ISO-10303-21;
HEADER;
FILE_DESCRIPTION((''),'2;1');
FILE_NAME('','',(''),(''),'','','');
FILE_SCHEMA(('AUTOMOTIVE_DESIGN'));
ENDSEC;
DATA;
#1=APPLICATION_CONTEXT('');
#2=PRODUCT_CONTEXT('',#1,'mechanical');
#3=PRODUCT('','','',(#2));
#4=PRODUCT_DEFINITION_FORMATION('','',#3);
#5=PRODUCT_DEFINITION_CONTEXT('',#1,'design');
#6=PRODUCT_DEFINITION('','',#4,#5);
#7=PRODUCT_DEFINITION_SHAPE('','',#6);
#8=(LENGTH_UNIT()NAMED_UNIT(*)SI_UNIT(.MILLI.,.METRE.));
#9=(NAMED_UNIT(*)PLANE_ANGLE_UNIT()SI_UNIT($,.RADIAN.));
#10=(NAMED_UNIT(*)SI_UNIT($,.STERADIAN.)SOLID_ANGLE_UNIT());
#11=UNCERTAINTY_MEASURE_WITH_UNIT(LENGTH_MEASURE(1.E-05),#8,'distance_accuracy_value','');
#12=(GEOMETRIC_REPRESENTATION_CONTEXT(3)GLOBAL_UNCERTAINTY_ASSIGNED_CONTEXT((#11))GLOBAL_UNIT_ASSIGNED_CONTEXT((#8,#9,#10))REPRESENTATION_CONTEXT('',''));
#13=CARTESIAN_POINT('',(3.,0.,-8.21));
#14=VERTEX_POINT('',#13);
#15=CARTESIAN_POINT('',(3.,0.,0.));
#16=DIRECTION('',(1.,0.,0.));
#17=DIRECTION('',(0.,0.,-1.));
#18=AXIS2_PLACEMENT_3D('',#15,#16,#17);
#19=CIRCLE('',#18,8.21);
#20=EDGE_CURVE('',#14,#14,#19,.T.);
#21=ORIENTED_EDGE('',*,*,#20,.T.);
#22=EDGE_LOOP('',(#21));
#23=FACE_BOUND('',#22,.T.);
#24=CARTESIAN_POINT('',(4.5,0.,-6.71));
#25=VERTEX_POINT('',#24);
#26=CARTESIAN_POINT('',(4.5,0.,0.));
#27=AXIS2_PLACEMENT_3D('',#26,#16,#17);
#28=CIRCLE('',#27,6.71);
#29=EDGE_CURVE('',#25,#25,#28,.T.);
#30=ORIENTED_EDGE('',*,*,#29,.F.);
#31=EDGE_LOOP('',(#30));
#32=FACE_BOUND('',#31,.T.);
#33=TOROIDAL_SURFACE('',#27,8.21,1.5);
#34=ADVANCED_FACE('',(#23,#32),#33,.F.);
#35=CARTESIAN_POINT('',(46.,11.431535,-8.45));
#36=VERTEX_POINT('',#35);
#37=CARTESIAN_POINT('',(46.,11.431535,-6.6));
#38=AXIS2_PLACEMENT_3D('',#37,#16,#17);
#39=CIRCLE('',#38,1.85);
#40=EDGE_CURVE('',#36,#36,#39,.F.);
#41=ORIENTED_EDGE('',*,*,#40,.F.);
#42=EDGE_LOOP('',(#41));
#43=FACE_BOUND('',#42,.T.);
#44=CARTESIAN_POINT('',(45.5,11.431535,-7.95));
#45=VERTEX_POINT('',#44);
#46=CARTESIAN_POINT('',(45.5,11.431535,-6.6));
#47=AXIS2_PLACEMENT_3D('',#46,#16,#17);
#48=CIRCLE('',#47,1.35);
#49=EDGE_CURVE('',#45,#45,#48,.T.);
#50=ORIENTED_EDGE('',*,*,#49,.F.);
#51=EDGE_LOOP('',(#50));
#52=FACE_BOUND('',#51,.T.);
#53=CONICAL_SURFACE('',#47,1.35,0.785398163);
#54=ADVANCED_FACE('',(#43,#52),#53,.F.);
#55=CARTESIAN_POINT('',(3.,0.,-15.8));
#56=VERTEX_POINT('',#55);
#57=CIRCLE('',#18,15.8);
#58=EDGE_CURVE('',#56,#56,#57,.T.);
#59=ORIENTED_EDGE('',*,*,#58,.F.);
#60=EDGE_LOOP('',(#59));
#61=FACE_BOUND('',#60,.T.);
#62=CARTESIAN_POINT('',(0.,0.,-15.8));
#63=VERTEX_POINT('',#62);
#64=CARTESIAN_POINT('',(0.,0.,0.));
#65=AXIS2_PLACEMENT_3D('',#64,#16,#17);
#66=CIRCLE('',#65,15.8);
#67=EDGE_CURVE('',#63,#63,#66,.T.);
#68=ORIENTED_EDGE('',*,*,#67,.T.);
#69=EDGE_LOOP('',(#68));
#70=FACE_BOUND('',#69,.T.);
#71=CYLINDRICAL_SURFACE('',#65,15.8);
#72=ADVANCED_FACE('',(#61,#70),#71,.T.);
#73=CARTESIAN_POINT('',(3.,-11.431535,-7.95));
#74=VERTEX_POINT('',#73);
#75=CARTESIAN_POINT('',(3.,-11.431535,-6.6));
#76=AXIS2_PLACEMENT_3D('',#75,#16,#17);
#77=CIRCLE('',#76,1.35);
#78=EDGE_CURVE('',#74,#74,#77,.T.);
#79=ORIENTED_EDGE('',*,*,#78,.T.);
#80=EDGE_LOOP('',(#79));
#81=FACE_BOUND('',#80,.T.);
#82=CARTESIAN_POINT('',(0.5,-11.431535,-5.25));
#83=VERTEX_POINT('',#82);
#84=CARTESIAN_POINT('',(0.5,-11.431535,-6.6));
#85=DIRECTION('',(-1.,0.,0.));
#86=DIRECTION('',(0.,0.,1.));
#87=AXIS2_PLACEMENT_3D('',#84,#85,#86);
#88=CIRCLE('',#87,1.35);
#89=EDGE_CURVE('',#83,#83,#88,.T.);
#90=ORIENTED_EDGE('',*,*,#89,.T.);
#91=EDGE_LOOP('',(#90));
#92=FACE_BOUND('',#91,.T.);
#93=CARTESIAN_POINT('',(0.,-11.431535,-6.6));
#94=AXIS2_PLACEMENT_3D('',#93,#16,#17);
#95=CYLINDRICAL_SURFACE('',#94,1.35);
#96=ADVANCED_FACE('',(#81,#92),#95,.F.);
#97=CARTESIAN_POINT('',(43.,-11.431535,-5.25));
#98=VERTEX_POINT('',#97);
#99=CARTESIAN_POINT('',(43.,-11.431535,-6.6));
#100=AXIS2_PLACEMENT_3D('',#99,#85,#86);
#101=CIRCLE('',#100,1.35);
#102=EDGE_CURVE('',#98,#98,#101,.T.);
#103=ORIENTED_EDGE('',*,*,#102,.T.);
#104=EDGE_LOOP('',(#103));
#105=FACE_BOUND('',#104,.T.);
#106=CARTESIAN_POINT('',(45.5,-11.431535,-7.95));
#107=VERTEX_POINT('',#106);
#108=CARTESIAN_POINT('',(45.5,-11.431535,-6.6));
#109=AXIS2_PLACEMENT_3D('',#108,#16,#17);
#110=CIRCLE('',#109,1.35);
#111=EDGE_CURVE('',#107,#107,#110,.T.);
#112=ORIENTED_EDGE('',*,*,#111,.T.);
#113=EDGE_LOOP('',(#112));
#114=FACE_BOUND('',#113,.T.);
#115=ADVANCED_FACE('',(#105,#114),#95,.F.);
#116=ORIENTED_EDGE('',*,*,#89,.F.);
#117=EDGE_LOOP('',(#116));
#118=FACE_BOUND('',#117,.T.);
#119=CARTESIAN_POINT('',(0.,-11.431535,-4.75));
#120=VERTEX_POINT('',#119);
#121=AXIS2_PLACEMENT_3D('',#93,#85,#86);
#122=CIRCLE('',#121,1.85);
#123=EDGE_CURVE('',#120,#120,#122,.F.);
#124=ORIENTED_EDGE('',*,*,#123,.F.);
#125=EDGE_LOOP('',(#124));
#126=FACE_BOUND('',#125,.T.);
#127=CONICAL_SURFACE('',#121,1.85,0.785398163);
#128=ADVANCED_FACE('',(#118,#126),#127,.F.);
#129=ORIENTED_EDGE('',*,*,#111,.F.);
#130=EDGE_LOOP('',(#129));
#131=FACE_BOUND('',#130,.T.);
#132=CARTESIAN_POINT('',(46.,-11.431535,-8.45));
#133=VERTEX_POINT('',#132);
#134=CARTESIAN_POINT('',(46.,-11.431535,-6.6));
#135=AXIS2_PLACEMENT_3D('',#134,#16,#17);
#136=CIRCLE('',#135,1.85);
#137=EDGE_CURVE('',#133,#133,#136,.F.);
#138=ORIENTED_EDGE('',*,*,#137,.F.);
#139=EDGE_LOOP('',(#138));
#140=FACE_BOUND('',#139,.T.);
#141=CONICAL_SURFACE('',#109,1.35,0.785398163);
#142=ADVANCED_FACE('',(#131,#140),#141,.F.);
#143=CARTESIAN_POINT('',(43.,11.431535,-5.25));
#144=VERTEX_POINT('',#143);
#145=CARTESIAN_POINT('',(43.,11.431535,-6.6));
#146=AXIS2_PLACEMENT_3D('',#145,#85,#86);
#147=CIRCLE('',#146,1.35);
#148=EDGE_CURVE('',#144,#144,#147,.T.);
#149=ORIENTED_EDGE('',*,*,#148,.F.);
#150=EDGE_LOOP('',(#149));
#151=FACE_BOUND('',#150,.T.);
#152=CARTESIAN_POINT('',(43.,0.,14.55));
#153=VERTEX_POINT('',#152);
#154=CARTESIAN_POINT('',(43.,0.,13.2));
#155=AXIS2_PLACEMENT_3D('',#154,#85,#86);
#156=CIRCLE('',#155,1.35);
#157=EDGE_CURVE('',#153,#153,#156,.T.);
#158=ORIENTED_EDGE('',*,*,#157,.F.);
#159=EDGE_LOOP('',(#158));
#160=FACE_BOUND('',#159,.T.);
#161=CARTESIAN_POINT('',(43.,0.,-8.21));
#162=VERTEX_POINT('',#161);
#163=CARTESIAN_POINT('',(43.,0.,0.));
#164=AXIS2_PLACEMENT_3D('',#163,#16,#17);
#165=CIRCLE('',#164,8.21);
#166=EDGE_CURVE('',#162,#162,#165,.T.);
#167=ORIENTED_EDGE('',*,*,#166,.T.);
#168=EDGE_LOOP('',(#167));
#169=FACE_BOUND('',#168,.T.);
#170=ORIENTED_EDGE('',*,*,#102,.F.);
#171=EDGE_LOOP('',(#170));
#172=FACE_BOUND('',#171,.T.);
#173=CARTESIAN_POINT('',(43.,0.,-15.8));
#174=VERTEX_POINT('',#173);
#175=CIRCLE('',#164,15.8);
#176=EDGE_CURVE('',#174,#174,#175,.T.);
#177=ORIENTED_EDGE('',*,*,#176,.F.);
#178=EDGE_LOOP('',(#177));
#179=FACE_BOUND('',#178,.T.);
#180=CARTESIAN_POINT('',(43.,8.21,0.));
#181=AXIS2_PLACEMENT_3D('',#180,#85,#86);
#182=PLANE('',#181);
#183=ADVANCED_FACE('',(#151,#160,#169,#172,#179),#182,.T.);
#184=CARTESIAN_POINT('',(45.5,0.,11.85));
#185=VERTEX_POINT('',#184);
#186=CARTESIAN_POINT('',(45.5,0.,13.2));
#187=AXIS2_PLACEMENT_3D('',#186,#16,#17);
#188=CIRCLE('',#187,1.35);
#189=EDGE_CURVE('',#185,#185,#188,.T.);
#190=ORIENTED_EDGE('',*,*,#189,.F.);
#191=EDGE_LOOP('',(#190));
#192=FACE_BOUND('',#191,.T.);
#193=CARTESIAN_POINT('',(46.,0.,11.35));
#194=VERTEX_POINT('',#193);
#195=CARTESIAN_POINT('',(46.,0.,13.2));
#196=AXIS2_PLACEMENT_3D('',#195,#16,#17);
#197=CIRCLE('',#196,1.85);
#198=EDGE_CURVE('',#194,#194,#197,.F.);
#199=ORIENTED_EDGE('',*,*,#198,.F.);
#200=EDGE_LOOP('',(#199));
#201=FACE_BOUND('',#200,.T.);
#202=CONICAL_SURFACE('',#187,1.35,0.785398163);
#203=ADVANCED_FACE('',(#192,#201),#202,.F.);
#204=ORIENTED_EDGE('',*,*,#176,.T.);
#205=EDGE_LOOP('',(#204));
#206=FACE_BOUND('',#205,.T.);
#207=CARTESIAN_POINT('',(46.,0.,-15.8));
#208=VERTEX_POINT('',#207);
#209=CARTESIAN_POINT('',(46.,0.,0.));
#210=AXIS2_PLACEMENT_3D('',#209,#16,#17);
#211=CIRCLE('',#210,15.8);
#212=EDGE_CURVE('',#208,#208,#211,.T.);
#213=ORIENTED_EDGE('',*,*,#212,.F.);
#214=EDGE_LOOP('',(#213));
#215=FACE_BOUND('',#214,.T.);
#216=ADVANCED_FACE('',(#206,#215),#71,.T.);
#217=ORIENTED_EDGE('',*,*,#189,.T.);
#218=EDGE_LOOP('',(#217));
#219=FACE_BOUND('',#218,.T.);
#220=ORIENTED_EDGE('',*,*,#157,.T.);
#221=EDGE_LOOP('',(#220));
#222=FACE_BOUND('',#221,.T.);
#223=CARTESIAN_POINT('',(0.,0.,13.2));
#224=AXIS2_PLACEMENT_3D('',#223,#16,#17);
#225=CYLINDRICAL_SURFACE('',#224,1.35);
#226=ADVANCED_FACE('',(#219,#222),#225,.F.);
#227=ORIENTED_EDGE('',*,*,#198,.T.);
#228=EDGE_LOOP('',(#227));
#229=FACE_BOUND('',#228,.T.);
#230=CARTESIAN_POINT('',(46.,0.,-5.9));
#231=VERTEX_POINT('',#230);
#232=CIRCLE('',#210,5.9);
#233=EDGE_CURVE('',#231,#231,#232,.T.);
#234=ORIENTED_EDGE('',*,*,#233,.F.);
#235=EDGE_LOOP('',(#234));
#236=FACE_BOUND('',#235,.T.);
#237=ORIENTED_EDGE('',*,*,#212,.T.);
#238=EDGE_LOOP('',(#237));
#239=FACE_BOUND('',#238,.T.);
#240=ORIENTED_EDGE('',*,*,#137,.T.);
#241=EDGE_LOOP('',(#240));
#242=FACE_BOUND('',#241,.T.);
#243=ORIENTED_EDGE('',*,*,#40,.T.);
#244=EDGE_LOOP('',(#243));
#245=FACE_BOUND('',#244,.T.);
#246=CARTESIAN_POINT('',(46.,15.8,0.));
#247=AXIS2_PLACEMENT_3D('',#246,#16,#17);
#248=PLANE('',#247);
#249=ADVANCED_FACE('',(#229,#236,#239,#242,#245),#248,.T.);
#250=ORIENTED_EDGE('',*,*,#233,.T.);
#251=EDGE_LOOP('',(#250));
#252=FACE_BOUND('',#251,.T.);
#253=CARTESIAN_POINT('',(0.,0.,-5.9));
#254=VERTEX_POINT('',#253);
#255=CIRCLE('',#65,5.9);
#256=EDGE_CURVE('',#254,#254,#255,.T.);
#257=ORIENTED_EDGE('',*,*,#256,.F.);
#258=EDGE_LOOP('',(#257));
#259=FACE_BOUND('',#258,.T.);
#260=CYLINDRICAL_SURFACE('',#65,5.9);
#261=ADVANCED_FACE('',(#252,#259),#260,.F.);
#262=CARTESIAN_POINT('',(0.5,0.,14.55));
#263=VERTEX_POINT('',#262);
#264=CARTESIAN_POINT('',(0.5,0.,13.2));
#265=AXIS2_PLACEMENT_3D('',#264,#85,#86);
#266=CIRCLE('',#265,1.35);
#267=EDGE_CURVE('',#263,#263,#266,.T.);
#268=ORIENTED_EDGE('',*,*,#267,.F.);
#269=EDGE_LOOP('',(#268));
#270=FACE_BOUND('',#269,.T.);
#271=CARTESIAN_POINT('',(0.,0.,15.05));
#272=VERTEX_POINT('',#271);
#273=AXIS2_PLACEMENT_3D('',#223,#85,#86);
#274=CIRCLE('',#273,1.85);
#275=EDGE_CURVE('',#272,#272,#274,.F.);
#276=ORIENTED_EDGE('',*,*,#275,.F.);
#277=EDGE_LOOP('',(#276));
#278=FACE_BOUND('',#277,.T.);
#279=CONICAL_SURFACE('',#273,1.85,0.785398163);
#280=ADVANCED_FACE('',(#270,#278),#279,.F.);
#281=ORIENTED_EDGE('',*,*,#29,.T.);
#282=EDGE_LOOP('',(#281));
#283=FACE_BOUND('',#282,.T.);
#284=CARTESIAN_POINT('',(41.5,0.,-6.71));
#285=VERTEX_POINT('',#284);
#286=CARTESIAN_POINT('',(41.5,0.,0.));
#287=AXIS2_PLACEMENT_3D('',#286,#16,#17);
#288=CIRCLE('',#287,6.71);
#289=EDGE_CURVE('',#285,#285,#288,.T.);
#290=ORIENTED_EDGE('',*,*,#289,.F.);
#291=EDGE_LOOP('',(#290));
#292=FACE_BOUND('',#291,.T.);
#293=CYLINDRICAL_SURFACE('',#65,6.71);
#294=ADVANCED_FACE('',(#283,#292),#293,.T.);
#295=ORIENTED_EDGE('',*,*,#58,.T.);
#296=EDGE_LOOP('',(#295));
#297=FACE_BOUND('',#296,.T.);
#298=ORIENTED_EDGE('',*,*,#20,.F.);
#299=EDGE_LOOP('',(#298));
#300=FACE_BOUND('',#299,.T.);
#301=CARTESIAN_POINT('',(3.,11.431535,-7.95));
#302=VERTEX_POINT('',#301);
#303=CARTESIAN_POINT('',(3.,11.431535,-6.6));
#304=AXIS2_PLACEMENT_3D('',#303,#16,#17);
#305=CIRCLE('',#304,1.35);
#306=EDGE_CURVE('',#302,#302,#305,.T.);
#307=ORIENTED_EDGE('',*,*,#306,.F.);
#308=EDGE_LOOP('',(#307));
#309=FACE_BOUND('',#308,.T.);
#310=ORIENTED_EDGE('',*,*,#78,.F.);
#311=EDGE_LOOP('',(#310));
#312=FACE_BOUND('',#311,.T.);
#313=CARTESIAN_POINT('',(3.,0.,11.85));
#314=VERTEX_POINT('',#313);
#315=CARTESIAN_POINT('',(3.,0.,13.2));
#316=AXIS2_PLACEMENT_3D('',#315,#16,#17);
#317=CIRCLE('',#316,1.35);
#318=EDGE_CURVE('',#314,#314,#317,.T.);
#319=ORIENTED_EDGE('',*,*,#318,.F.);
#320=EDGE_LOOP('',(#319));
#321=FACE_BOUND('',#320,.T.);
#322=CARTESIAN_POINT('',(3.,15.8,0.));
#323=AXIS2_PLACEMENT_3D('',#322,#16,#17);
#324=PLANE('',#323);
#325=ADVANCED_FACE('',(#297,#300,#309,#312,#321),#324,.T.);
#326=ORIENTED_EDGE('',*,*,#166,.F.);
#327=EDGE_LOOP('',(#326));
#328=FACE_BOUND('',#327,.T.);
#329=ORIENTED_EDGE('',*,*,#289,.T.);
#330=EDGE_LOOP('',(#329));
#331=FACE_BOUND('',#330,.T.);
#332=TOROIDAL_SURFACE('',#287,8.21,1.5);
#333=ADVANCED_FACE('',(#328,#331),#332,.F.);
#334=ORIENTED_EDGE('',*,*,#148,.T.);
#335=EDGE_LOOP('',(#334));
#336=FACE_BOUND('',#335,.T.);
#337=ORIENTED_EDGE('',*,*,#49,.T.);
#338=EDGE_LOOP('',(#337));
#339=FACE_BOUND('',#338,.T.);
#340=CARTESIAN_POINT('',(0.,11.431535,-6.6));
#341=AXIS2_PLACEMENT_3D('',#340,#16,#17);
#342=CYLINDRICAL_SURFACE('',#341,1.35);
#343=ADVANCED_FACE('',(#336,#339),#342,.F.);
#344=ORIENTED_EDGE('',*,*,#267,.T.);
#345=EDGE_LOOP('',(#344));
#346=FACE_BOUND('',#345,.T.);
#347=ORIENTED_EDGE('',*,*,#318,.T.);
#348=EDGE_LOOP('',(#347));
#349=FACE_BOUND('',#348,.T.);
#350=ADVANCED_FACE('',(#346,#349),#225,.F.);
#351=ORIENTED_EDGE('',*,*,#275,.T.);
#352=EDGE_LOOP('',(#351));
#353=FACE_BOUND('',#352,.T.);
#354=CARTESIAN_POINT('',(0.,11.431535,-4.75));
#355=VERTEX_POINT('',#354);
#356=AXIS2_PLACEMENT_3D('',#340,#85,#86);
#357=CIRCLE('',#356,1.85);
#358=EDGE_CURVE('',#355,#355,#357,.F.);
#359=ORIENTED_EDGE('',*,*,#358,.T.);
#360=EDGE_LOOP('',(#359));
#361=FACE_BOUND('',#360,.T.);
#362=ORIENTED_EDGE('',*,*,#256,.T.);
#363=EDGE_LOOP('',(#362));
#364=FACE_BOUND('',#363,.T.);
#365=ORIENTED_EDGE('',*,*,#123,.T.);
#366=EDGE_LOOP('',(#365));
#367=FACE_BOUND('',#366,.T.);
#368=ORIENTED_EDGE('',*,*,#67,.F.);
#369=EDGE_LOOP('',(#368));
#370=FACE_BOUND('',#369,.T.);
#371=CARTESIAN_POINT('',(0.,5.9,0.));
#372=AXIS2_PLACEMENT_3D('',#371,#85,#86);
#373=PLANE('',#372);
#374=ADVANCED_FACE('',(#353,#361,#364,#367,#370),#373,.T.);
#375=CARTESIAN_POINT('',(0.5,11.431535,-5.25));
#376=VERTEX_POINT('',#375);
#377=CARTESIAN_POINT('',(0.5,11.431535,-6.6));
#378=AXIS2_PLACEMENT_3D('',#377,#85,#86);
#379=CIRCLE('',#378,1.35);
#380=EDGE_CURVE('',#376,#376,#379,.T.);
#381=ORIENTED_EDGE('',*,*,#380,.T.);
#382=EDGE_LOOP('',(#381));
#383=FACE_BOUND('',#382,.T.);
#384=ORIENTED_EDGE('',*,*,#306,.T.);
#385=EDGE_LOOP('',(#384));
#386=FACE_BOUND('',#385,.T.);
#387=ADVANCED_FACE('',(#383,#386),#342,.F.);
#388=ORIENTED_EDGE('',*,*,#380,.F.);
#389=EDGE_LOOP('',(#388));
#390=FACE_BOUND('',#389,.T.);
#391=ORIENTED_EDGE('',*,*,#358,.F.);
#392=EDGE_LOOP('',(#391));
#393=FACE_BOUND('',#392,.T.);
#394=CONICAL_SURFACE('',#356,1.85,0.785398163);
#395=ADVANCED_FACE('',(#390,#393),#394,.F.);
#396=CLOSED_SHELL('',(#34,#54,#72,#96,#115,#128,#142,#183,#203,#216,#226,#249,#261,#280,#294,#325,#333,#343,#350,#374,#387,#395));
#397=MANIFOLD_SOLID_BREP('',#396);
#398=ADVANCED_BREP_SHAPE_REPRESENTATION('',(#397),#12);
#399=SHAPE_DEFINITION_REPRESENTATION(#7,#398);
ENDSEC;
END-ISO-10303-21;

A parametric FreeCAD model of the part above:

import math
import FreeCAD as App
import Part
import Sketcher
from FreeCAD import Vector


def edges_at(feature, points):
    """Names of the edges that pass closest to the given points."""
    edges = feature.Shape.Edges
    near = lambda p: min(range(len(edges)), key=lambda i: edges[i].distToShape(Part.Vertex(*p))[0])
    return sorted({f"Edge{near(p) + 1}" for p in points})

doc = App.newDocument("Part")
body = doc.addObject("PartDesign::Body", "Body")

# Sketch on XY plane
sketch1 = body.newObject("Sketcher::SketchObject", "Sketch")
sketch1.AttachmentSupport = (doc.getObject("XY_Plane"), [""])
sketch1.MapMode = "FlatFace"
sketch1.addGeometry([
    Part.LineSegment(Vector(0, 15.8, 0), Vector(0, 5.9, 0)),  # 0
    Part.LineSegment(Vector(0, 5.9, 0), Vector(46, 5.9, 0)),  # 1
    Part.LineSegment(Vector(46, 5.9, 0), Vector(46, 15.8, 0)),  # 2
    Part.LineSegment(Vector(46, 15.8, 0), Vector(43, 15.8, 0)),  # 3
    Part.LineSegment(Vector(43, 15.8, 0), Vector(43, 8.21, 0)),  # 4
    Part.ArcOfCircle(Part.Circle(Vector(41.5, 8.21, 0), Vector(0, 0, 1), 1.5), math.radians(-90), math.radians(0)),  # 5
    Part.LineSegment(Vector(41.5, 6.71, 0), Vector(4.5, 6.71, 0)),  # 6
    Part.ArcOfCircle(Part.Circle(Vector(4.5, 8.21, 0), Vector(0, 0, 1), 1.5), math.radians(180), math.radians(270)),  # 7
    Part.LineSegment(Vector(3, 8.21, 0), Vector(3, 15.8, 0)),  # 8
    Part.LineSegment(Vector(3, 15.8, 0), Vector(0, 15.8, 0)),  # 9
], False)
sketch1.addConstraint([
    Sketcher.Constraint("Coincident", 0, 2, 1, 1),
    Sketcher.Constraint("Coincident", 1, 2, 2, 1),
    Sketcher.Constraint("Coincident", 2, 2, 3, 1),
    Sketcher.Constraint("Coincident", 3, 2, 4, 1),
    Sketcher.Constraint("Tangent", 4, 2, 5, 2),
    Sketcher.Constraint("Tangent", 5, 1, 6, 1),
    Sketcher.Constraint("Tangent", 6, 2, 7, 2),
    Sketcher.Constraint("Tangent", 7, 1, 8, 1),
    Sketcher.Constraint("Coincident", 8, 2, 9, 1),
    Sketcher.Constraint("Coincident", 9, 2, 0, 1),
    Sketcher.Constraint("Vertical", 0),
    Sketcher.Constraint("Horizontal", 1),
    Sketcher.Constraint("Vertical", 2),
    Sketcher.Constraint("Horizontal", 3),
    Sketcher.Constraint("Vertical", 4),
    Sketcher.Constraint("Horizontal", 6),
    Sketcher.Constraint("Vertical", 8),
    Sketcher.Constraint("Horizontal", 9),
    Sketcher.Constraint("Equal", 5, 7),
    Sketcher.Constraint("PointOnObject", 0, 2, -2),
    Sketcher.Constraint("Horizontal", 3, 2, 8, 2),
    Sketcher.Constraint("Equal", 3, 9),
    Sketcher.Constraint("Radius", 5, 1.5),
    Sketcher.Constraint("DistanceX", 1, 1, 1, 2, 46.0),
    Sketcher.Constraint("DistanceX", 3, 2, 3, 1, 3.0),
    Sketcher.Constraint("DistanceY", 0, 2, 0, 1, 9.9),
    Sketcher.Constraint("DistanceY", 4, 2, 4, 1, 7.59),
    Sketcher.Constraint("DistanceY", -1, 1, 0, 2, 5.9),
])
revolution = body.newObject("PartDesign::Revolution", "Revolution")
revolution.Profile = sketch1
revolution.ReferenceAxis = (sketch1, ["H_Axis"])
revolution.Angle = 360

# Sketch on YZ plane
sketch2 = body.newObject("Sketcher::SketchObject", "Sketch001")
sketch2.AttachmentSupport = (doc.getObject("YZ_Plane"), [""])
sketch2.MapMode = "FlatFace"
sketch2.AttachmentOffset = App.Placement(Vector(0, 0, 46), App.Rotation())
sketch2.addGeometry([
    Part.Circle(Vector(0, 13.2, 0), Vector(0, 0, 1), 1.35),
    Part.Circle(Vector(11.431535, -6.6, 0), Vector(0, 0, 1), 1.35),
    Part.Circle(Vector(-11.431535, -6.6, 0), Vector(0, 0, 1), 1.35),
], False)
sketch2.addConstraint([
    Sketcher.Constraint("Equal", 0, 1),
    Sketcher.Constraint("Equal", 1, 2),
    Sketcher.Constraint("Symmetric", 1, 3, 2, 3, -2),
    Sketcher.Constraint("PointOnObject", 0, 3, -2),
    Sketcher.Constraint("Diameter", 0, 2.7),
    Sketcher.Constraint("DistanceY", -1, 1, 0, 3, 13.2),
    Sketcher.Constraint("DistanceY", 1, 3, -1, 1, 6.6),
    Sketcher.Constraint("DistanceX", 2, 3, 1, 3, 22.863071),
])
pocket1 = body.newObject("PartDesign::Pocket", "Pocket")
pocket1.Profile = sketch2
pocket1.Type = "ThroughAll"
doc.recompute()

chamfer = body.newObject("PartDesign::Chamfer", "Chamfer")
chamfer.Base = (pocket1, edges_at(pocket1, [
    (0, 0, 14.55),
    (46, 0, 14.55),
    (0, 11.432, -5.25),
    (46, 11.432, -5.25),
    (0, -11.432, -5.25),
    (46, -11.432, -5.25),
]))
chamfer.Size = 0.5

doc.recompute()
